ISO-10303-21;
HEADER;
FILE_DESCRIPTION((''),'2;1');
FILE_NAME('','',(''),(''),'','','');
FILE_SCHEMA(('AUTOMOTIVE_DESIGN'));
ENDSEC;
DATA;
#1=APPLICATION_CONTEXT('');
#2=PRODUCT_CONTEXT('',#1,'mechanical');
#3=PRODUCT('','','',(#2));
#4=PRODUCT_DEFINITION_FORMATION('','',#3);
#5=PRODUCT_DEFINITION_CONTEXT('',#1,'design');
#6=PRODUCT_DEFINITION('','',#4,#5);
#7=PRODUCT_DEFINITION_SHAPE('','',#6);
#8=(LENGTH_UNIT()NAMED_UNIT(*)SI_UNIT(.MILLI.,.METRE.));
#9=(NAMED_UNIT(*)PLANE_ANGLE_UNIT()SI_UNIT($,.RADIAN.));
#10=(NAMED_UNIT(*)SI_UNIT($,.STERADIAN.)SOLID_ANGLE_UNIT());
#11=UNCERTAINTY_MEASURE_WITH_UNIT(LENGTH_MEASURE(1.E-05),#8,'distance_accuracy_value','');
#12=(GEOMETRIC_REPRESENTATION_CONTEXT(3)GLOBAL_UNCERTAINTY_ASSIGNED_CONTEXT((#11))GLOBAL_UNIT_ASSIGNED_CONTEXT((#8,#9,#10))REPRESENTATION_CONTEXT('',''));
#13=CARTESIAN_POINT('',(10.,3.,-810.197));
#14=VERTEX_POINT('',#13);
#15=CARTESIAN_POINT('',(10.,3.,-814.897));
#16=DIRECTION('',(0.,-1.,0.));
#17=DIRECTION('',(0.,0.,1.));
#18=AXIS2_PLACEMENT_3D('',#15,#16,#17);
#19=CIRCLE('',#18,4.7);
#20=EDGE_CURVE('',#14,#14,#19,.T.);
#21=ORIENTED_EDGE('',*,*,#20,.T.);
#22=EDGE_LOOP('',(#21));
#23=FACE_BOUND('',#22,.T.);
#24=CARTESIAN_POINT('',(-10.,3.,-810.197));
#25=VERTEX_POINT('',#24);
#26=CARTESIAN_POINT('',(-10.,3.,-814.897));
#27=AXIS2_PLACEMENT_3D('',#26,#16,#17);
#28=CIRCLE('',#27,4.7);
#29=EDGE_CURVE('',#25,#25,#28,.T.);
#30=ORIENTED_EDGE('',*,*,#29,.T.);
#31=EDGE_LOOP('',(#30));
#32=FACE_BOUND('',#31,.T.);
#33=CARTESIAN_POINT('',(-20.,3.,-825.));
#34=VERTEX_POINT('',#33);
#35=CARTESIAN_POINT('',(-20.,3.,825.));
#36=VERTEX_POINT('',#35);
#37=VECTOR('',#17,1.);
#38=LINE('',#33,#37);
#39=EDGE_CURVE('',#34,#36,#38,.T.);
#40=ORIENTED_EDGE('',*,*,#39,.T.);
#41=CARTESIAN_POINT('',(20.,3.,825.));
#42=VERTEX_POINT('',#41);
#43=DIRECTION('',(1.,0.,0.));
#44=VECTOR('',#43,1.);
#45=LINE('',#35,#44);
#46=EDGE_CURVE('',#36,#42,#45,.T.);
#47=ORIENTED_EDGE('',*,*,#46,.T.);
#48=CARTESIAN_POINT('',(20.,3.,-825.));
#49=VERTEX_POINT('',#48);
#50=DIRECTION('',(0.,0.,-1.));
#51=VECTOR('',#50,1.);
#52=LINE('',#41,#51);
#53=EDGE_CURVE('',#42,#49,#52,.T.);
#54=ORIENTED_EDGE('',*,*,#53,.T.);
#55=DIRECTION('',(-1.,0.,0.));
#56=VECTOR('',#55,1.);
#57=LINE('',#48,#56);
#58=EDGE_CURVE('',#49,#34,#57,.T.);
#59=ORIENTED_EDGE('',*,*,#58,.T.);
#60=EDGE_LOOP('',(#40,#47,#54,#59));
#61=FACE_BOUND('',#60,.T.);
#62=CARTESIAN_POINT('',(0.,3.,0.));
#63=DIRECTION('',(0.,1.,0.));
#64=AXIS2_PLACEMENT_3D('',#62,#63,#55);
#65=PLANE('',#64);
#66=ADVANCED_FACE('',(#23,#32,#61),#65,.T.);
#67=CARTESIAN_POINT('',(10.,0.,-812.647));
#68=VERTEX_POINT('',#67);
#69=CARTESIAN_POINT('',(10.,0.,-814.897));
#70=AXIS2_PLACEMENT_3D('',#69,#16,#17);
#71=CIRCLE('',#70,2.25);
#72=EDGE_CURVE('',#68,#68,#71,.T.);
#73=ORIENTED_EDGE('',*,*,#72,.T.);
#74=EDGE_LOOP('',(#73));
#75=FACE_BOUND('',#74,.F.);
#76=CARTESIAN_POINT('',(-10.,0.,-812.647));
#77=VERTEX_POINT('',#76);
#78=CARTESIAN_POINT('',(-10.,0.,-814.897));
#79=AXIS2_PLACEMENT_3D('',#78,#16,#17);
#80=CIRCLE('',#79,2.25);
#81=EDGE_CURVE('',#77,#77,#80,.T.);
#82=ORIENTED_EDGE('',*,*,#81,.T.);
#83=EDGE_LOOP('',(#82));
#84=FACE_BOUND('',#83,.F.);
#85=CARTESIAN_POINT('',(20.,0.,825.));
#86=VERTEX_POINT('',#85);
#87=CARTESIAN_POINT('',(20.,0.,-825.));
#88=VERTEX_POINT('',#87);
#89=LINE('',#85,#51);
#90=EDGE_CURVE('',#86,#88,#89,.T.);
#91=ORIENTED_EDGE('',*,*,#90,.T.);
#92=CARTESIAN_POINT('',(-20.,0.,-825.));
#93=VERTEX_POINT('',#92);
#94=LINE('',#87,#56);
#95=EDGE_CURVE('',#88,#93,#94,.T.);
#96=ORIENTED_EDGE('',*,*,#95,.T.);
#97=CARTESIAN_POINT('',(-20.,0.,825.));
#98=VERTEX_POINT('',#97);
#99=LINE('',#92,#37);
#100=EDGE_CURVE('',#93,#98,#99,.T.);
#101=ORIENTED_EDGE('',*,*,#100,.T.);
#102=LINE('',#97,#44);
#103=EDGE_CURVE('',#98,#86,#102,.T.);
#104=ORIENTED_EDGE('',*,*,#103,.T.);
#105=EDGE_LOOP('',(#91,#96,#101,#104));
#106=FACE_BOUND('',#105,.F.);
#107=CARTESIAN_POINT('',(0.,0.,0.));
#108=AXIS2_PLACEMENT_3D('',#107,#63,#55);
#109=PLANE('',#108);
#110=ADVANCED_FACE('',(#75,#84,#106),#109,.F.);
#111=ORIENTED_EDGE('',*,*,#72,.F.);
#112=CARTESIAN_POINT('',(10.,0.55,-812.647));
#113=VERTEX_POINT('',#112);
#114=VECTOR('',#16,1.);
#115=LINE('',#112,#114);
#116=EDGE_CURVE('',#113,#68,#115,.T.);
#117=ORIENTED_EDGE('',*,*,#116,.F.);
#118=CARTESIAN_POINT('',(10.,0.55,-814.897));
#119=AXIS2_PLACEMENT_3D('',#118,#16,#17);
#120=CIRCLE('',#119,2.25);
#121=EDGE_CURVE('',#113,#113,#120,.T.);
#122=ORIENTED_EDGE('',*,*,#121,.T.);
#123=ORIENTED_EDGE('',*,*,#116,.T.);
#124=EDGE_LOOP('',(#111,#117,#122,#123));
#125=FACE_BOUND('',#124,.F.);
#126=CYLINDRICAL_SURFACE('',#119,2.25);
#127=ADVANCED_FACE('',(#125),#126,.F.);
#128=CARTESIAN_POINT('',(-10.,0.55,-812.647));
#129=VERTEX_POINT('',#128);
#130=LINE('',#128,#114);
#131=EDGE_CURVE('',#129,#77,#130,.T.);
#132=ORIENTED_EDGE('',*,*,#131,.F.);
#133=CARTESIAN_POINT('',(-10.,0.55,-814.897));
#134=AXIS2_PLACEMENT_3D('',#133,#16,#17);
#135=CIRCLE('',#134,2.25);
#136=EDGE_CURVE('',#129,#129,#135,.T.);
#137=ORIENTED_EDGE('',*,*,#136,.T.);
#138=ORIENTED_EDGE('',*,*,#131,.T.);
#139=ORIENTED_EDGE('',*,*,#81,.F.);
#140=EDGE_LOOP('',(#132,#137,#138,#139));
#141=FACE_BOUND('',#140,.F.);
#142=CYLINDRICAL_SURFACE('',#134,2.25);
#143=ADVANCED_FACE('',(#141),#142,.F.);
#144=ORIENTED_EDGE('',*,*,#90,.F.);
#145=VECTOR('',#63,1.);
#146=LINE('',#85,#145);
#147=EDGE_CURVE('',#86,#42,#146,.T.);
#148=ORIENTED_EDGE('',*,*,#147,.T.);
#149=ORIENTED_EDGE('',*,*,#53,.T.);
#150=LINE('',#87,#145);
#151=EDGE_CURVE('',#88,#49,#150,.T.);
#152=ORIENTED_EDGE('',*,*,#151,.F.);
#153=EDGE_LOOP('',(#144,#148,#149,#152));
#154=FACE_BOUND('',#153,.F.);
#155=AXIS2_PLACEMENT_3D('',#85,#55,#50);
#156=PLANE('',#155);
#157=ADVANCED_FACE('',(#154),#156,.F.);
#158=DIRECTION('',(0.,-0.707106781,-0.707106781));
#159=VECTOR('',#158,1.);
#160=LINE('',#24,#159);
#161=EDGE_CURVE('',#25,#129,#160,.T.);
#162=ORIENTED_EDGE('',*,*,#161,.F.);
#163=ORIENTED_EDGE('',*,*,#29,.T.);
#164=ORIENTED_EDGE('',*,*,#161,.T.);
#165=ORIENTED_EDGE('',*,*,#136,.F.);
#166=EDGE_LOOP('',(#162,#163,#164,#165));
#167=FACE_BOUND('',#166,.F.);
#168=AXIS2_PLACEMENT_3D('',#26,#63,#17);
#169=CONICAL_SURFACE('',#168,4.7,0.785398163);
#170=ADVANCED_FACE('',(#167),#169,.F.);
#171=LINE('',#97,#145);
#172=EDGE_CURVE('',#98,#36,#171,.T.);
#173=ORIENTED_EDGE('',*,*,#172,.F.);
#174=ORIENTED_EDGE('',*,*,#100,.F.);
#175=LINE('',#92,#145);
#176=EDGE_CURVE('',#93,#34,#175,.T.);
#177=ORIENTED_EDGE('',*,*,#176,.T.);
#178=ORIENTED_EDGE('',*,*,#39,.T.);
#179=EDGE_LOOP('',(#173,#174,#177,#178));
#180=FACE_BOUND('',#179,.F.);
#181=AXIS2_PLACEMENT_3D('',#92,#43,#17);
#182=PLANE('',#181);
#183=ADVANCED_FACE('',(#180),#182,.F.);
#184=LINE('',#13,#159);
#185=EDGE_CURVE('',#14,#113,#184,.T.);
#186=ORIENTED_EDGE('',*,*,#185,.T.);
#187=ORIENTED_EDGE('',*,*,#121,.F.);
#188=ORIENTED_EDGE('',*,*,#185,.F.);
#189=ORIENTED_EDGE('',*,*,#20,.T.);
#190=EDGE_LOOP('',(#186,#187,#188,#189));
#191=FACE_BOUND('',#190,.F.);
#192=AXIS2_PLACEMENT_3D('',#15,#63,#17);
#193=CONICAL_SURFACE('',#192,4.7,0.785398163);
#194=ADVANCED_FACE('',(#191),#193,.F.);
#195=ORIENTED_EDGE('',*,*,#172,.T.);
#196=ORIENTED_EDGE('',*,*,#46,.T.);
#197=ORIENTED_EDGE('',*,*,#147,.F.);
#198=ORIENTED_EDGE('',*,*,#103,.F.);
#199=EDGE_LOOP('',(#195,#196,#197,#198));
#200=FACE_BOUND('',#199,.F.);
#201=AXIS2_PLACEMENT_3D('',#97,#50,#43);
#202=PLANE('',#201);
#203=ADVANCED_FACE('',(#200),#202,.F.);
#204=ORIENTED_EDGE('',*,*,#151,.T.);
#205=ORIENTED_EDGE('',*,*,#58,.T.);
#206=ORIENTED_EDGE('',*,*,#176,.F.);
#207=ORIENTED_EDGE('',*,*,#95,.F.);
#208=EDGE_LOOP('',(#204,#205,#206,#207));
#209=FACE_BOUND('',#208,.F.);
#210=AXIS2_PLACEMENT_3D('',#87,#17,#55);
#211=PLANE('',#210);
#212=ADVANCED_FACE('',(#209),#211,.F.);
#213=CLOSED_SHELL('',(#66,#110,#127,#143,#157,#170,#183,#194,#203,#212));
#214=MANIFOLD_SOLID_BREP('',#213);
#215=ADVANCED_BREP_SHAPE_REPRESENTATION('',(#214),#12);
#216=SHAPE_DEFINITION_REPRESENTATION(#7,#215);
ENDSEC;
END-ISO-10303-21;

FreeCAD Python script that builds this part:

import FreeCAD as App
import Part
import Sketcher
from FreeCAD import Vector
Q = App.Units.Quantity


def add_polygon(sketch, points):
    """Adds a closed chain of lines whose ends are joined by coincident constraints."""
    first, n = sketch.GeometryCount, len(points)
    for a, b in zip(points, points[1:] + points[:1]):
        sketch.addGeometry(Part.LineSegment(App.Vector(*a, 0), App.Vector(*b, 0)), False)
    for i in range(n):
        sketch.addConstraint(Sketcher.Constraint("Coincident", first + i, 2, first + (i + 1) % n, 1))

doc = App.newDocument("Part")
body = doc.addObject("PartDesign::Body", "Body")

# Sketch on XZ plane
sketch1 = body.newObject("Sketcher::SketchObject", "Sketch")
sketch1.AttachmentSupport = (doc.getObject("XZ_Plane"), [""])
sketch1.MapMode = "FlatFace"
add_polygon(sketch1, [(-20, -825), (-20, 825), (20, 825), (20, -825)])  # lines 0-3
sketch1.addConstraint([
    Sketcher.Constraint("Vertical", 0),
    Sketcher.Constraint("Horizontal", 1),
    Sketcher.Constraint("Vertical", 2),
    Sketcher.Constraint("Horizontal", 3),
    Sketcher.Constraint("Symmetric", 0, 2, 2, 2, -1, 1),
    Sketcher.Constraint("DistanceX", 1, 1, 1, 2, Q("40 mm")),
    Sketcher.Constraint("DistanceY", 0, 1, 0, 2, Q("1650 mm")),
])
pad1 = body.newObject("PartDesign::Pad", "Pad")
pad1.Profile = sketch1
pad1.Length = 3
pad1.Reversed = True

# Sketch on XZ plane
sketch2 = body.newObject("Sketcher::SketchObject", "Sketch001")
sketch2.AttachmentSupport = (doc.getObject("XZ_Plane"), [""])
sketch2.MapMode = "FlatFace"
sketch2.AttachmentOffset = App.Placement(Vector(0, 0, -3), App.Rotation())
sketch2.addGeometry([
    Part.Circle(Vector(-10, -814.897, 0), Vector(0, 0, 1), 2.25),
    Part.Circle(Vector(10, -814.897, 0), Vector(0, 0, 1), 2.25),
], False)
sketch2.addConstraint([
    Sketcher.Constraint("Equal", 0, 1),
    Sketcher.Constraint("Symmetric", 0, 3, 1, 3, -2),
    Sketcher.Constraint("Diameter", 0, Q("4.5 mm")),
    Sketcher.Constraint("DistanceX", 0, 3, -1, 1, Q("10 mm")),
    Sketcher.Constraint("DistanceY", 0, 3, -1, 1, Q("814.897 mm")),
])
doc.recompute()
hole = body.newObject("PartDesign::Hole", "Hole")
hole.Profile = sketch2
hole.ThreadType = "None"
hole.Diameter = 4.5
hole.DepthType = "Dimension"
hole.Depth = 8
hole.DrillPoint = "Flat"
hole.HoleCutType = "Countersink"
hole.HoleCutDiameter = 9.4
hole.HoleCutCountersinkAngle = 90
hole.Reversed = True

doc.recompute()
